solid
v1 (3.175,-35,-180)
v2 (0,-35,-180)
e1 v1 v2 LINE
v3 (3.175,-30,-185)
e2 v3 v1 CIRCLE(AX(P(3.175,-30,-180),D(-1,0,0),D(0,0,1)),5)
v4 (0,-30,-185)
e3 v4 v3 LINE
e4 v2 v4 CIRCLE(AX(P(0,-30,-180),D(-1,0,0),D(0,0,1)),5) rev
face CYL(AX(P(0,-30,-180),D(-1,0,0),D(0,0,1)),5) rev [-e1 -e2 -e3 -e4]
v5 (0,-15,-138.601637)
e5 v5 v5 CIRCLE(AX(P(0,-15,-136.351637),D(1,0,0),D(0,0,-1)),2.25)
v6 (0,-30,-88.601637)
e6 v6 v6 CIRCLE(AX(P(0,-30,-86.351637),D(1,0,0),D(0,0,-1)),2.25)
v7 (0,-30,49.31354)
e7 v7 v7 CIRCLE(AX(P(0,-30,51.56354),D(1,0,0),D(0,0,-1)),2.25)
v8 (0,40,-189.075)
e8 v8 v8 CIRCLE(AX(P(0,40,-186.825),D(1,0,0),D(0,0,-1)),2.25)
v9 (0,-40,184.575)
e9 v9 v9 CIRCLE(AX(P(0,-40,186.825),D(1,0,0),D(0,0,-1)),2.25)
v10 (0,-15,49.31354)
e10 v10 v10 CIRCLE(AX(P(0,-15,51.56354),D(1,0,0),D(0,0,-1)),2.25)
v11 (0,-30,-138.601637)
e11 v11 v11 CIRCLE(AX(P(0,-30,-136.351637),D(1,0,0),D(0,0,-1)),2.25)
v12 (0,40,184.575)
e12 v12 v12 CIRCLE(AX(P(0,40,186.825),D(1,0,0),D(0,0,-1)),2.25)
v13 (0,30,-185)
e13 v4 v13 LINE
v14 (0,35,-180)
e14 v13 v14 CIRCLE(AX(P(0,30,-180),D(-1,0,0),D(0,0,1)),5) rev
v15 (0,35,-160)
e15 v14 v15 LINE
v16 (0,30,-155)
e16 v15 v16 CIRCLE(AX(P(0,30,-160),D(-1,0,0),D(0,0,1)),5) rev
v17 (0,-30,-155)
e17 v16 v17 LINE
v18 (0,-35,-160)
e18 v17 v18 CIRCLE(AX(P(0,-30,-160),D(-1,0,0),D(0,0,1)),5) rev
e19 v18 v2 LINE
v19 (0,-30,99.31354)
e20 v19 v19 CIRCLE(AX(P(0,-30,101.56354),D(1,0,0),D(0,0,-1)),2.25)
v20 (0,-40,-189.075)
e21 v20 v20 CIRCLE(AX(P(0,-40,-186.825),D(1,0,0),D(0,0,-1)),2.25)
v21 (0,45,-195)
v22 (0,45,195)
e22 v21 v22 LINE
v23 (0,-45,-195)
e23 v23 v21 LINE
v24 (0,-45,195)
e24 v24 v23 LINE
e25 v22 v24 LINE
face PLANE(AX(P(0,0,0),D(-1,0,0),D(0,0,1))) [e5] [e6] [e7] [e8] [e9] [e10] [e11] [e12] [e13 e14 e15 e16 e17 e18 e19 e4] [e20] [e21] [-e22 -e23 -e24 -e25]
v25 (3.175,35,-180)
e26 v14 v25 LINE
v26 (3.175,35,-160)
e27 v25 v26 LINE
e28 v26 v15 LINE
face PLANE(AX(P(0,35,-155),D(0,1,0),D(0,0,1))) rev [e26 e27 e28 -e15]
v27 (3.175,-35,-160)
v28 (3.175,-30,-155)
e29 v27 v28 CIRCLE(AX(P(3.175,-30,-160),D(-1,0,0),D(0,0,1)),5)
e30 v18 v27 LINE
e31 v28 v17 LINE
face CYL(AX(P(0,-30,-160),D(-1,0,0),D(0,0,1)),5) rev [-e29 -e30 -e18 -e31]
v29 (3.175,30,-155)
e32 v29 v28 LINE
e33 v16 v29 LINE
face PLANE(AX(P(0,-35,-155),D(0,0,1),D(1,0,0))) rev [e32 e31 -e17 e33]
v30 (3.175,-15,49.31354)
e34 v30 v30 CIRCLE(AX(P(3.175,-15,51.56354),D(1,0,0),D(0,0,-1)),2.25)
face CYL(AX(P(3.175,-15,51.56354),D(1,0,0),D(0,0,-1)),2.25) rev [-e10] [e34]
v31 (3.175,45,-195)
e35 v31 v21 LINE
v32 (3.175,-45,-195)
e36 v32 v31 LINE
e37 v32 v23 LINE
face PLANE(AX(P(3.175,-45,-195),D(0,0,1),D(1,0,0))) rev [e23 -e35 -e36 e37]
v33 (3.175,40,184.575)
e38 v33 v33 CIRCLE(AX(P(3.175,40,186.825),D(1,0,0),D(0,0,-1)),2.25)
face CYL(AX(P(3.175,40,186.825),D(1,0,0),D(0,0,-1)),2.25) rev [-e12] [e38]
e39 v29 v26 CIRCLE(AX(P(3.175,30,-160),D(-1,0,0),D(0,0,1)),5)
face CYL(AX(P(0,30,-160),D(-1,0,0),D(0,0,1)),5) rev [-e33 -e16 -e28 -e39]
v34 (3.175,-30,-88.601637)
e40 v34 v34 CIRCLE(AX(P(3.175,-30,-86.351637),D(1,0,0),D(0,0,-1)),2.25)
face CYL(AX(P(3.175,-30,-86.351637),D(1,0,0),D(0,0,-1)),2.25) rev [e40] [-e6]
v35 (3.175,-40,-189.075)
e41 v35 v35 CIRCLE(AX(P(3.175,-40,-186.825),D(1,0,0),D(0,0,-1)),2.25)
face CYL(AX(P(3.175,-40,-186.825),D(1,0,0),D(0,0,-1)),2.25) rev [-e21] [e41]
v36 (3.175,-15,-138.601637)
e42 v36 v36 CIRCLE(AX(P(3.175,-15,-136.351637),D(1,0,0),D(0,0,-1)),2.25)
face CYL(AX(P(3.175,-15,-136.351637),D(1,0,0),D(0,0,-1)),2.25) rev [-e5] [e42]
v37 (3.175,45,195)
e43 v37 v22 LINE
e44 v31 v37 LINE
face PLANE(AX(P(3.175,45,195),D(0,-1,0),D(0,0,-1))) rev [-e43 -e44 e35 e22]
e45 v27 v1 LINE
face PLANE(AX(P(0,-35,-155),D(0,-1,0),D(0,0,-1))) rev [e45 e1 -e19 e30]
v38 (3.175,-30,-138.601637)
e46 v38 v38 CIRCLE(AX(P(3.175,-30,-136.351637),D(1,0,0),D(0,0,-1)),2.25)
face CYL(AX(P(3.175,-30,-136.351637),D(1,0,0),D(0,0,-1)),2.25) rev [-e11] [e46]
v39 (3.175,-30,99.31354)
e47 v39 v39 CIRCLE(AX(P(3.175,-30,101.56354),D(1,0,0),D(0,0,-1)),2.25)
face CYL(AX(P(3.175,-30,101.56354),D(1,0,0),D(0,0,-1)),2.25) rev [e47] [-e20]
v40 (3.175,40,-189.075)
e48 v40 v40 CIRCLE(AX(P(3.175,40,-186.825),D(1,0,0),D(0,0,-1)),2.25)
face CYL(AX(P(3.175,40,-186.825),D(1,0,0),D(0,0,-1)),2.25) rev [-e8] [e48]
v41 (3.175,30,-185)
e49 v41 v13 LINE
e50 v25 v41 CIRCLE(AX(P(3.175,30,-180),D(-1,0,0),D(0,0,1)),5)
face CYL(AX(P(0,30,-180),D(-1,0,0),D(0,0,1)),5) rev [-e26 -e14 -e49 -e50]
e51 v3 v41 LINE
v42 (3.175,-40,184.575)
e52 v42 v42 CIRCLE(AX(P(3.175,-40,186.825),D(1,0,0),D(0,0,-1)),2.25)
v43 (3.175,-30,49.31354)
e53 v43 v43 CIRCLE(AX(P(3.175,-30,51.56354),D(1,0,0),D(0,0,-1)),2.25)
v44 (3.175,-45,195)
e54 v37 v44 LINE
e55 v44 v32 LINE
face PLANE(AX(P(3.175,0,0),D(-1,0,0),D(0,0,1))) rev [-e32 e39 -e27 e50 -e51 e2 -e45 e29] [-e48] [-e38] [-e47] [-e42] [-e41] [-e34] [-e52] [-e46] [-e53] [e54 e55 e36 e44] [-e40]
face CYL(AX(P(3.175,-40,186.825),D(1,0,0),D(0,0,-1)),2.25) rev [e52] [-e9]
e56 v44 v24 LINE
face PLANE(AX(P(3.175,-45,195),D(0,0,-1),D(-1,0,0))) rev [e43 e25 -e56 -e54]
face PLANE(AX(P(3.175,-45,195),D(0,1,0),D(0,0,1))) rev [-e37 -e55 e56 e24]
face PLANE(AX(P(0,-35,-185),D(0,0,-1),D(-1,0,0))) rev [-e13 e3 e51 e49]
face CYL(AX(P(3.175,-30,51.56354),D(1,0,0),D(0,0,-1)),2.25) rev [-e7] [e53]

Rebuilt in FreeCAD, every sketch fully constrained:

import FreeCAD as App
import Part
import Sketcher
from FreeCAD import Vector


def edges_at(feature, points):
    """Names of the edges that pass closest to the given points."""
    edges = feature.Shape.Edges
    near = lambda p: min(range(len(edges)), key=lambda i: edges[i].distToShape(Part.Vertex(*p))[0])
    return sorted({f"Edge{near(p) + 1}" for p in points})


def add_polygon(sketch, points):
    """Adds a closed chain of lines whose ends are joined by coincident constraints."""
    first, n = sketch.GeometryCount, len(points)
    for a, b in zip(points, points[1:] + points[:1]):
        sketch.addGeometry(Part.LineSegment(App.Vector(*a, 0), App.Vector(*b, 0)), False)
    for i in range(n):
        sketch.addConstraint(Sketcher.Constraint("Coincident", first + i, 2, first + (i + 1) % n, 1))

doc = App.newDocument("Part")
body = doc.addObject("PartDesign::Body", "Body")

# Sketch on YZ plane
sketch1 = body.newObject("Sketcher::SketchObject", "Sketch")
sketch1.AttachmentSupport = (doc.getObject("YZ_Plane"), [""])
sketch1.MapMode = "FlatFace"
add_polygon(sketch1, [(45, 195), (-45, 195), (-45, -195), (45, -195)])  # lines 0-3
sketch1.addConstraint([
    Sketcher.Constraint("Horizontal", 0),
    Sketcher.Constraint("Vertical", 1),
    Sketcher.Constraint("Horizontal", 2),
    Sketcher.Constraint("Vertical", 3),
    Sketcher.Constraint("Symmetric", 0, 2, 2, 2, -1, 1),
    Sketcher.Constraint("DistanceX", 0, 2, 0, 1, 90.0),
    Sketcher.Constraint("DistanceY", 1, 2, 1, 1, 390.0),
])
pad1 = body.newObject("PartDesign::Pad", "Pad")
pad1.Profile = sketch1
pad1.Length = 3.175

# Sketch on YZ plane
sketch2 = body.newObject("Sketcher::SketchObject", "Sketch001")
sketch2.AttachmentSupport = (doc.getObject("YZ_Plane"), [""])
sketch2.MapMode = "FlatFace"
sketch2.AttachmentOffset = App.Placement(Vector(0, 0, 3.175), App.Rotation())
sketch2.addGeometry([
    Part.Circle(Vector(-15, -136.4, 0), Vector(0, 0, 1), 2.2),  # 0
    Part.Circle(Vector(-30, 101.6, 0), Vector(0, 0, 1), 2.2),  # 1
    Part.Circle(Vector(-30, 51.6, 0), Vector(0, 0, 1), 2.2),  # 2
    Part.Circle(Vector(-15, 51.6, 0), Vector(0, 0, 1), 2.2),  # 3
    Part.Circle(Vector(-30, -86.4, 0), Vector(0, 0, 1), 2.2),  # 4
    Part.Circle(Vector(-30, -136.4, 0), Vector(0, 0, 1), 2.2),  # 5
], False)
sketch2.addConstraint([
    Sketcher.Constraint("Equal", 0, 1),
    Sketcher.Constraint("Equal", 1, 2),
    Sketcher.Constraint("Equal", 2, 3),
    Sketcher.Constraint("Equal", 3, 4),
    Sketcher.Constraint("Equal", 4, 5),
    Sketcher.Constraint("Horizontal", 2, 3, 3, 3),
    Sketcher.Constraint("Horizontal", 0, 3, 5, 3),
    Sketcher.Constraint("Vertical", 1, 3, 2, 3),
    Sketcher.Constraint("Vertical", 0, 3, 3, 3),
    Sketcher.Constraint("Vertical", 2, 3, 4, 3),
    Sketcher.Constraint("Vertical", 4, 3, 5, 3),
    Sketcher.Constraint("Diameter", 0, 4.5),
    Sketcher.Constraint("DistanceX", 0, 3, -1, 1, 15.0),
    Sketcher.Constraint("DistanceX", 1, 3, -1, 1, 30.0),
    Sketcher.Constraint("DistanceY", 2, 3, 1, 3, 50.0),
    Sketcher.Constraint("DistanceY", 0, 3, 4, 3, 50.0),
    Sketcher.Constraint("DistanceY", -1, 1, 1, 3, 101.56354),
    Sketcher.Constraint("DistanceY", 0, 3, -1, 1, 136.351637),
])
doc.recompute()
hole = body.newObject("PartDesign::Hole", "Hole")
hole.Profile = sketch2
hole.ThreadType = "None"
hole.Diameter = 4.5
hole.DepthType = "ThroughAll"

# Sketch on YZ plane
sketch3 = body.newObject("Sketcher::SketchObject", "Sketch002")
sketch3.AttachmentSupport = (doc.getObject("YZ_Plane"), [""])
sketch3.MapMode = "FlatFace"
sketch3.AttachmentOffset = App.Placement(Vector(0, 0, 3.175), App.Rotation())
add_polygon(sketch3, [(35, -155), (-35, -155), (-35, -185), (35, -185)])  # lines 0-3
sketch3.addConstraint([
    Sketcher.Constraint("Horizontal", 0),
    Sketcher.Constraint("Vertical", 1),
    Sketcher.Constraint("Horizontal", 2),
    Sketcher.Constraint("Vertical", 3),
    Sketcher.Constraint("DistanceX", 0, 2, 0, 1, 70.0),
    Sketcher.Constraint("DistanceY", 1, 2, 1, 1, 30.0),
    Sketcher.Constraint("DistanceX", 0, 2, -1, 1, 35.0),
    Sketcher.Constraint("DistanceY", 0, 2, -1, 1, 155.0),
])
pocket1 = body.newObject("PartDesign::Pocket", "Pocket")
pocket1.Profile = sketch3
pocket1.Type = "ThroughAll"
doc.recompute()

fillet = body.newObject("PartDesign::Fillet", "Fillet")
fillet.Base = (pocket1, edges_at(pocket1, [
    (1.587, 35, -185),
    (1.587, -35, -185),
    (1.587, -35, -155),
    (1.587, 35, -155),
]))
fillet.Radius = 5

# Sketch on YZ plane
sketch4 = body.newObject("Sketcher::SketchObject", "Sketch003")
sketch4.AttachmentSupport = (doc.getObject("YZ_Plane"), [""])
sketch4.MapMode = "FlatFace"
sketch4.AttachmentOffset = App.Placement(Vector(0, 0, 3.175), App.Rotation())
sketch4.addGeometry(Part.Circle(Vector(-40, 186.8, 0), Vector(0, 0, 1), 2.2), False)
sketch4.addConstraint([
    Sketcher.Constraint("Diameter", 0, 4.5),
    Sketcher.Constraint("DistanceX", 0, 3, -1, 1, 40.0),
    Sketcher.Constraint("DistanceY", -1, 1, 0, 3, 186.825),
])
doc.recompute()
hole2 = body.newObject("PartDesign::Hole", "Hole001")
hole2.Profile = sketch4
hole2.ThreadType = "None"
hole2.Diameter = 4.5
hole2.DepthType = "ThroughAll"
doc.recompute()

mirrored = body.newObject("PartDesign::Mirrored", "Mirrored")
mirrored.Originals = [hole2]
mirrored.MirrorPlane = (doc.getObject("XY_Plane"), [""])
body.Tip = mirrored
doc.recompute()

mirrored2 = body.newObject("PartDesign::Mirrored", "Mirrored001")
mirrored2.Originals = [hole2]
mirrored2.MirrorPlane = (doc.getObject("XZ_Plane"), [""])
body.Tip = mirrored2

# Sketch on YZ plane
sketch5 = body.newObject("Sketcher::SketchObject", "Sketch004")
sketch5.AttachmentSupport = (doc.getObject("YZ_Plane"), [""])
sketch5.MapMode = "FlatFace"
sketch5.AttachmentOffset = App.Placement(Vector(0, 0, 3.175), App.Rotation())
sketch5.addGeometry(Part.Circle(Vector(40, -186.8, 0), Vector(0, 0, 1), 2.2), False)
sketch5.addConstraint([
    Sketcher.Constraint("Diameter", 0, 4.5),
    Sketcher.Constraint("DistanceX", -1, 1, 0, 3, 40.0),
    Sketcher.Constraint("DistanceY", 0, 3, -1, 1, 186.825),
])
doc.recompute()
hole3 = body.newObject("PartDesign::Hole", "Hole002")
hole3.Profile = sketch5
hole3.ThreadType = "None"
hole3.Diameter = 4.5
hole3.DepthType = "ThroughAll"

doc.recompute()
